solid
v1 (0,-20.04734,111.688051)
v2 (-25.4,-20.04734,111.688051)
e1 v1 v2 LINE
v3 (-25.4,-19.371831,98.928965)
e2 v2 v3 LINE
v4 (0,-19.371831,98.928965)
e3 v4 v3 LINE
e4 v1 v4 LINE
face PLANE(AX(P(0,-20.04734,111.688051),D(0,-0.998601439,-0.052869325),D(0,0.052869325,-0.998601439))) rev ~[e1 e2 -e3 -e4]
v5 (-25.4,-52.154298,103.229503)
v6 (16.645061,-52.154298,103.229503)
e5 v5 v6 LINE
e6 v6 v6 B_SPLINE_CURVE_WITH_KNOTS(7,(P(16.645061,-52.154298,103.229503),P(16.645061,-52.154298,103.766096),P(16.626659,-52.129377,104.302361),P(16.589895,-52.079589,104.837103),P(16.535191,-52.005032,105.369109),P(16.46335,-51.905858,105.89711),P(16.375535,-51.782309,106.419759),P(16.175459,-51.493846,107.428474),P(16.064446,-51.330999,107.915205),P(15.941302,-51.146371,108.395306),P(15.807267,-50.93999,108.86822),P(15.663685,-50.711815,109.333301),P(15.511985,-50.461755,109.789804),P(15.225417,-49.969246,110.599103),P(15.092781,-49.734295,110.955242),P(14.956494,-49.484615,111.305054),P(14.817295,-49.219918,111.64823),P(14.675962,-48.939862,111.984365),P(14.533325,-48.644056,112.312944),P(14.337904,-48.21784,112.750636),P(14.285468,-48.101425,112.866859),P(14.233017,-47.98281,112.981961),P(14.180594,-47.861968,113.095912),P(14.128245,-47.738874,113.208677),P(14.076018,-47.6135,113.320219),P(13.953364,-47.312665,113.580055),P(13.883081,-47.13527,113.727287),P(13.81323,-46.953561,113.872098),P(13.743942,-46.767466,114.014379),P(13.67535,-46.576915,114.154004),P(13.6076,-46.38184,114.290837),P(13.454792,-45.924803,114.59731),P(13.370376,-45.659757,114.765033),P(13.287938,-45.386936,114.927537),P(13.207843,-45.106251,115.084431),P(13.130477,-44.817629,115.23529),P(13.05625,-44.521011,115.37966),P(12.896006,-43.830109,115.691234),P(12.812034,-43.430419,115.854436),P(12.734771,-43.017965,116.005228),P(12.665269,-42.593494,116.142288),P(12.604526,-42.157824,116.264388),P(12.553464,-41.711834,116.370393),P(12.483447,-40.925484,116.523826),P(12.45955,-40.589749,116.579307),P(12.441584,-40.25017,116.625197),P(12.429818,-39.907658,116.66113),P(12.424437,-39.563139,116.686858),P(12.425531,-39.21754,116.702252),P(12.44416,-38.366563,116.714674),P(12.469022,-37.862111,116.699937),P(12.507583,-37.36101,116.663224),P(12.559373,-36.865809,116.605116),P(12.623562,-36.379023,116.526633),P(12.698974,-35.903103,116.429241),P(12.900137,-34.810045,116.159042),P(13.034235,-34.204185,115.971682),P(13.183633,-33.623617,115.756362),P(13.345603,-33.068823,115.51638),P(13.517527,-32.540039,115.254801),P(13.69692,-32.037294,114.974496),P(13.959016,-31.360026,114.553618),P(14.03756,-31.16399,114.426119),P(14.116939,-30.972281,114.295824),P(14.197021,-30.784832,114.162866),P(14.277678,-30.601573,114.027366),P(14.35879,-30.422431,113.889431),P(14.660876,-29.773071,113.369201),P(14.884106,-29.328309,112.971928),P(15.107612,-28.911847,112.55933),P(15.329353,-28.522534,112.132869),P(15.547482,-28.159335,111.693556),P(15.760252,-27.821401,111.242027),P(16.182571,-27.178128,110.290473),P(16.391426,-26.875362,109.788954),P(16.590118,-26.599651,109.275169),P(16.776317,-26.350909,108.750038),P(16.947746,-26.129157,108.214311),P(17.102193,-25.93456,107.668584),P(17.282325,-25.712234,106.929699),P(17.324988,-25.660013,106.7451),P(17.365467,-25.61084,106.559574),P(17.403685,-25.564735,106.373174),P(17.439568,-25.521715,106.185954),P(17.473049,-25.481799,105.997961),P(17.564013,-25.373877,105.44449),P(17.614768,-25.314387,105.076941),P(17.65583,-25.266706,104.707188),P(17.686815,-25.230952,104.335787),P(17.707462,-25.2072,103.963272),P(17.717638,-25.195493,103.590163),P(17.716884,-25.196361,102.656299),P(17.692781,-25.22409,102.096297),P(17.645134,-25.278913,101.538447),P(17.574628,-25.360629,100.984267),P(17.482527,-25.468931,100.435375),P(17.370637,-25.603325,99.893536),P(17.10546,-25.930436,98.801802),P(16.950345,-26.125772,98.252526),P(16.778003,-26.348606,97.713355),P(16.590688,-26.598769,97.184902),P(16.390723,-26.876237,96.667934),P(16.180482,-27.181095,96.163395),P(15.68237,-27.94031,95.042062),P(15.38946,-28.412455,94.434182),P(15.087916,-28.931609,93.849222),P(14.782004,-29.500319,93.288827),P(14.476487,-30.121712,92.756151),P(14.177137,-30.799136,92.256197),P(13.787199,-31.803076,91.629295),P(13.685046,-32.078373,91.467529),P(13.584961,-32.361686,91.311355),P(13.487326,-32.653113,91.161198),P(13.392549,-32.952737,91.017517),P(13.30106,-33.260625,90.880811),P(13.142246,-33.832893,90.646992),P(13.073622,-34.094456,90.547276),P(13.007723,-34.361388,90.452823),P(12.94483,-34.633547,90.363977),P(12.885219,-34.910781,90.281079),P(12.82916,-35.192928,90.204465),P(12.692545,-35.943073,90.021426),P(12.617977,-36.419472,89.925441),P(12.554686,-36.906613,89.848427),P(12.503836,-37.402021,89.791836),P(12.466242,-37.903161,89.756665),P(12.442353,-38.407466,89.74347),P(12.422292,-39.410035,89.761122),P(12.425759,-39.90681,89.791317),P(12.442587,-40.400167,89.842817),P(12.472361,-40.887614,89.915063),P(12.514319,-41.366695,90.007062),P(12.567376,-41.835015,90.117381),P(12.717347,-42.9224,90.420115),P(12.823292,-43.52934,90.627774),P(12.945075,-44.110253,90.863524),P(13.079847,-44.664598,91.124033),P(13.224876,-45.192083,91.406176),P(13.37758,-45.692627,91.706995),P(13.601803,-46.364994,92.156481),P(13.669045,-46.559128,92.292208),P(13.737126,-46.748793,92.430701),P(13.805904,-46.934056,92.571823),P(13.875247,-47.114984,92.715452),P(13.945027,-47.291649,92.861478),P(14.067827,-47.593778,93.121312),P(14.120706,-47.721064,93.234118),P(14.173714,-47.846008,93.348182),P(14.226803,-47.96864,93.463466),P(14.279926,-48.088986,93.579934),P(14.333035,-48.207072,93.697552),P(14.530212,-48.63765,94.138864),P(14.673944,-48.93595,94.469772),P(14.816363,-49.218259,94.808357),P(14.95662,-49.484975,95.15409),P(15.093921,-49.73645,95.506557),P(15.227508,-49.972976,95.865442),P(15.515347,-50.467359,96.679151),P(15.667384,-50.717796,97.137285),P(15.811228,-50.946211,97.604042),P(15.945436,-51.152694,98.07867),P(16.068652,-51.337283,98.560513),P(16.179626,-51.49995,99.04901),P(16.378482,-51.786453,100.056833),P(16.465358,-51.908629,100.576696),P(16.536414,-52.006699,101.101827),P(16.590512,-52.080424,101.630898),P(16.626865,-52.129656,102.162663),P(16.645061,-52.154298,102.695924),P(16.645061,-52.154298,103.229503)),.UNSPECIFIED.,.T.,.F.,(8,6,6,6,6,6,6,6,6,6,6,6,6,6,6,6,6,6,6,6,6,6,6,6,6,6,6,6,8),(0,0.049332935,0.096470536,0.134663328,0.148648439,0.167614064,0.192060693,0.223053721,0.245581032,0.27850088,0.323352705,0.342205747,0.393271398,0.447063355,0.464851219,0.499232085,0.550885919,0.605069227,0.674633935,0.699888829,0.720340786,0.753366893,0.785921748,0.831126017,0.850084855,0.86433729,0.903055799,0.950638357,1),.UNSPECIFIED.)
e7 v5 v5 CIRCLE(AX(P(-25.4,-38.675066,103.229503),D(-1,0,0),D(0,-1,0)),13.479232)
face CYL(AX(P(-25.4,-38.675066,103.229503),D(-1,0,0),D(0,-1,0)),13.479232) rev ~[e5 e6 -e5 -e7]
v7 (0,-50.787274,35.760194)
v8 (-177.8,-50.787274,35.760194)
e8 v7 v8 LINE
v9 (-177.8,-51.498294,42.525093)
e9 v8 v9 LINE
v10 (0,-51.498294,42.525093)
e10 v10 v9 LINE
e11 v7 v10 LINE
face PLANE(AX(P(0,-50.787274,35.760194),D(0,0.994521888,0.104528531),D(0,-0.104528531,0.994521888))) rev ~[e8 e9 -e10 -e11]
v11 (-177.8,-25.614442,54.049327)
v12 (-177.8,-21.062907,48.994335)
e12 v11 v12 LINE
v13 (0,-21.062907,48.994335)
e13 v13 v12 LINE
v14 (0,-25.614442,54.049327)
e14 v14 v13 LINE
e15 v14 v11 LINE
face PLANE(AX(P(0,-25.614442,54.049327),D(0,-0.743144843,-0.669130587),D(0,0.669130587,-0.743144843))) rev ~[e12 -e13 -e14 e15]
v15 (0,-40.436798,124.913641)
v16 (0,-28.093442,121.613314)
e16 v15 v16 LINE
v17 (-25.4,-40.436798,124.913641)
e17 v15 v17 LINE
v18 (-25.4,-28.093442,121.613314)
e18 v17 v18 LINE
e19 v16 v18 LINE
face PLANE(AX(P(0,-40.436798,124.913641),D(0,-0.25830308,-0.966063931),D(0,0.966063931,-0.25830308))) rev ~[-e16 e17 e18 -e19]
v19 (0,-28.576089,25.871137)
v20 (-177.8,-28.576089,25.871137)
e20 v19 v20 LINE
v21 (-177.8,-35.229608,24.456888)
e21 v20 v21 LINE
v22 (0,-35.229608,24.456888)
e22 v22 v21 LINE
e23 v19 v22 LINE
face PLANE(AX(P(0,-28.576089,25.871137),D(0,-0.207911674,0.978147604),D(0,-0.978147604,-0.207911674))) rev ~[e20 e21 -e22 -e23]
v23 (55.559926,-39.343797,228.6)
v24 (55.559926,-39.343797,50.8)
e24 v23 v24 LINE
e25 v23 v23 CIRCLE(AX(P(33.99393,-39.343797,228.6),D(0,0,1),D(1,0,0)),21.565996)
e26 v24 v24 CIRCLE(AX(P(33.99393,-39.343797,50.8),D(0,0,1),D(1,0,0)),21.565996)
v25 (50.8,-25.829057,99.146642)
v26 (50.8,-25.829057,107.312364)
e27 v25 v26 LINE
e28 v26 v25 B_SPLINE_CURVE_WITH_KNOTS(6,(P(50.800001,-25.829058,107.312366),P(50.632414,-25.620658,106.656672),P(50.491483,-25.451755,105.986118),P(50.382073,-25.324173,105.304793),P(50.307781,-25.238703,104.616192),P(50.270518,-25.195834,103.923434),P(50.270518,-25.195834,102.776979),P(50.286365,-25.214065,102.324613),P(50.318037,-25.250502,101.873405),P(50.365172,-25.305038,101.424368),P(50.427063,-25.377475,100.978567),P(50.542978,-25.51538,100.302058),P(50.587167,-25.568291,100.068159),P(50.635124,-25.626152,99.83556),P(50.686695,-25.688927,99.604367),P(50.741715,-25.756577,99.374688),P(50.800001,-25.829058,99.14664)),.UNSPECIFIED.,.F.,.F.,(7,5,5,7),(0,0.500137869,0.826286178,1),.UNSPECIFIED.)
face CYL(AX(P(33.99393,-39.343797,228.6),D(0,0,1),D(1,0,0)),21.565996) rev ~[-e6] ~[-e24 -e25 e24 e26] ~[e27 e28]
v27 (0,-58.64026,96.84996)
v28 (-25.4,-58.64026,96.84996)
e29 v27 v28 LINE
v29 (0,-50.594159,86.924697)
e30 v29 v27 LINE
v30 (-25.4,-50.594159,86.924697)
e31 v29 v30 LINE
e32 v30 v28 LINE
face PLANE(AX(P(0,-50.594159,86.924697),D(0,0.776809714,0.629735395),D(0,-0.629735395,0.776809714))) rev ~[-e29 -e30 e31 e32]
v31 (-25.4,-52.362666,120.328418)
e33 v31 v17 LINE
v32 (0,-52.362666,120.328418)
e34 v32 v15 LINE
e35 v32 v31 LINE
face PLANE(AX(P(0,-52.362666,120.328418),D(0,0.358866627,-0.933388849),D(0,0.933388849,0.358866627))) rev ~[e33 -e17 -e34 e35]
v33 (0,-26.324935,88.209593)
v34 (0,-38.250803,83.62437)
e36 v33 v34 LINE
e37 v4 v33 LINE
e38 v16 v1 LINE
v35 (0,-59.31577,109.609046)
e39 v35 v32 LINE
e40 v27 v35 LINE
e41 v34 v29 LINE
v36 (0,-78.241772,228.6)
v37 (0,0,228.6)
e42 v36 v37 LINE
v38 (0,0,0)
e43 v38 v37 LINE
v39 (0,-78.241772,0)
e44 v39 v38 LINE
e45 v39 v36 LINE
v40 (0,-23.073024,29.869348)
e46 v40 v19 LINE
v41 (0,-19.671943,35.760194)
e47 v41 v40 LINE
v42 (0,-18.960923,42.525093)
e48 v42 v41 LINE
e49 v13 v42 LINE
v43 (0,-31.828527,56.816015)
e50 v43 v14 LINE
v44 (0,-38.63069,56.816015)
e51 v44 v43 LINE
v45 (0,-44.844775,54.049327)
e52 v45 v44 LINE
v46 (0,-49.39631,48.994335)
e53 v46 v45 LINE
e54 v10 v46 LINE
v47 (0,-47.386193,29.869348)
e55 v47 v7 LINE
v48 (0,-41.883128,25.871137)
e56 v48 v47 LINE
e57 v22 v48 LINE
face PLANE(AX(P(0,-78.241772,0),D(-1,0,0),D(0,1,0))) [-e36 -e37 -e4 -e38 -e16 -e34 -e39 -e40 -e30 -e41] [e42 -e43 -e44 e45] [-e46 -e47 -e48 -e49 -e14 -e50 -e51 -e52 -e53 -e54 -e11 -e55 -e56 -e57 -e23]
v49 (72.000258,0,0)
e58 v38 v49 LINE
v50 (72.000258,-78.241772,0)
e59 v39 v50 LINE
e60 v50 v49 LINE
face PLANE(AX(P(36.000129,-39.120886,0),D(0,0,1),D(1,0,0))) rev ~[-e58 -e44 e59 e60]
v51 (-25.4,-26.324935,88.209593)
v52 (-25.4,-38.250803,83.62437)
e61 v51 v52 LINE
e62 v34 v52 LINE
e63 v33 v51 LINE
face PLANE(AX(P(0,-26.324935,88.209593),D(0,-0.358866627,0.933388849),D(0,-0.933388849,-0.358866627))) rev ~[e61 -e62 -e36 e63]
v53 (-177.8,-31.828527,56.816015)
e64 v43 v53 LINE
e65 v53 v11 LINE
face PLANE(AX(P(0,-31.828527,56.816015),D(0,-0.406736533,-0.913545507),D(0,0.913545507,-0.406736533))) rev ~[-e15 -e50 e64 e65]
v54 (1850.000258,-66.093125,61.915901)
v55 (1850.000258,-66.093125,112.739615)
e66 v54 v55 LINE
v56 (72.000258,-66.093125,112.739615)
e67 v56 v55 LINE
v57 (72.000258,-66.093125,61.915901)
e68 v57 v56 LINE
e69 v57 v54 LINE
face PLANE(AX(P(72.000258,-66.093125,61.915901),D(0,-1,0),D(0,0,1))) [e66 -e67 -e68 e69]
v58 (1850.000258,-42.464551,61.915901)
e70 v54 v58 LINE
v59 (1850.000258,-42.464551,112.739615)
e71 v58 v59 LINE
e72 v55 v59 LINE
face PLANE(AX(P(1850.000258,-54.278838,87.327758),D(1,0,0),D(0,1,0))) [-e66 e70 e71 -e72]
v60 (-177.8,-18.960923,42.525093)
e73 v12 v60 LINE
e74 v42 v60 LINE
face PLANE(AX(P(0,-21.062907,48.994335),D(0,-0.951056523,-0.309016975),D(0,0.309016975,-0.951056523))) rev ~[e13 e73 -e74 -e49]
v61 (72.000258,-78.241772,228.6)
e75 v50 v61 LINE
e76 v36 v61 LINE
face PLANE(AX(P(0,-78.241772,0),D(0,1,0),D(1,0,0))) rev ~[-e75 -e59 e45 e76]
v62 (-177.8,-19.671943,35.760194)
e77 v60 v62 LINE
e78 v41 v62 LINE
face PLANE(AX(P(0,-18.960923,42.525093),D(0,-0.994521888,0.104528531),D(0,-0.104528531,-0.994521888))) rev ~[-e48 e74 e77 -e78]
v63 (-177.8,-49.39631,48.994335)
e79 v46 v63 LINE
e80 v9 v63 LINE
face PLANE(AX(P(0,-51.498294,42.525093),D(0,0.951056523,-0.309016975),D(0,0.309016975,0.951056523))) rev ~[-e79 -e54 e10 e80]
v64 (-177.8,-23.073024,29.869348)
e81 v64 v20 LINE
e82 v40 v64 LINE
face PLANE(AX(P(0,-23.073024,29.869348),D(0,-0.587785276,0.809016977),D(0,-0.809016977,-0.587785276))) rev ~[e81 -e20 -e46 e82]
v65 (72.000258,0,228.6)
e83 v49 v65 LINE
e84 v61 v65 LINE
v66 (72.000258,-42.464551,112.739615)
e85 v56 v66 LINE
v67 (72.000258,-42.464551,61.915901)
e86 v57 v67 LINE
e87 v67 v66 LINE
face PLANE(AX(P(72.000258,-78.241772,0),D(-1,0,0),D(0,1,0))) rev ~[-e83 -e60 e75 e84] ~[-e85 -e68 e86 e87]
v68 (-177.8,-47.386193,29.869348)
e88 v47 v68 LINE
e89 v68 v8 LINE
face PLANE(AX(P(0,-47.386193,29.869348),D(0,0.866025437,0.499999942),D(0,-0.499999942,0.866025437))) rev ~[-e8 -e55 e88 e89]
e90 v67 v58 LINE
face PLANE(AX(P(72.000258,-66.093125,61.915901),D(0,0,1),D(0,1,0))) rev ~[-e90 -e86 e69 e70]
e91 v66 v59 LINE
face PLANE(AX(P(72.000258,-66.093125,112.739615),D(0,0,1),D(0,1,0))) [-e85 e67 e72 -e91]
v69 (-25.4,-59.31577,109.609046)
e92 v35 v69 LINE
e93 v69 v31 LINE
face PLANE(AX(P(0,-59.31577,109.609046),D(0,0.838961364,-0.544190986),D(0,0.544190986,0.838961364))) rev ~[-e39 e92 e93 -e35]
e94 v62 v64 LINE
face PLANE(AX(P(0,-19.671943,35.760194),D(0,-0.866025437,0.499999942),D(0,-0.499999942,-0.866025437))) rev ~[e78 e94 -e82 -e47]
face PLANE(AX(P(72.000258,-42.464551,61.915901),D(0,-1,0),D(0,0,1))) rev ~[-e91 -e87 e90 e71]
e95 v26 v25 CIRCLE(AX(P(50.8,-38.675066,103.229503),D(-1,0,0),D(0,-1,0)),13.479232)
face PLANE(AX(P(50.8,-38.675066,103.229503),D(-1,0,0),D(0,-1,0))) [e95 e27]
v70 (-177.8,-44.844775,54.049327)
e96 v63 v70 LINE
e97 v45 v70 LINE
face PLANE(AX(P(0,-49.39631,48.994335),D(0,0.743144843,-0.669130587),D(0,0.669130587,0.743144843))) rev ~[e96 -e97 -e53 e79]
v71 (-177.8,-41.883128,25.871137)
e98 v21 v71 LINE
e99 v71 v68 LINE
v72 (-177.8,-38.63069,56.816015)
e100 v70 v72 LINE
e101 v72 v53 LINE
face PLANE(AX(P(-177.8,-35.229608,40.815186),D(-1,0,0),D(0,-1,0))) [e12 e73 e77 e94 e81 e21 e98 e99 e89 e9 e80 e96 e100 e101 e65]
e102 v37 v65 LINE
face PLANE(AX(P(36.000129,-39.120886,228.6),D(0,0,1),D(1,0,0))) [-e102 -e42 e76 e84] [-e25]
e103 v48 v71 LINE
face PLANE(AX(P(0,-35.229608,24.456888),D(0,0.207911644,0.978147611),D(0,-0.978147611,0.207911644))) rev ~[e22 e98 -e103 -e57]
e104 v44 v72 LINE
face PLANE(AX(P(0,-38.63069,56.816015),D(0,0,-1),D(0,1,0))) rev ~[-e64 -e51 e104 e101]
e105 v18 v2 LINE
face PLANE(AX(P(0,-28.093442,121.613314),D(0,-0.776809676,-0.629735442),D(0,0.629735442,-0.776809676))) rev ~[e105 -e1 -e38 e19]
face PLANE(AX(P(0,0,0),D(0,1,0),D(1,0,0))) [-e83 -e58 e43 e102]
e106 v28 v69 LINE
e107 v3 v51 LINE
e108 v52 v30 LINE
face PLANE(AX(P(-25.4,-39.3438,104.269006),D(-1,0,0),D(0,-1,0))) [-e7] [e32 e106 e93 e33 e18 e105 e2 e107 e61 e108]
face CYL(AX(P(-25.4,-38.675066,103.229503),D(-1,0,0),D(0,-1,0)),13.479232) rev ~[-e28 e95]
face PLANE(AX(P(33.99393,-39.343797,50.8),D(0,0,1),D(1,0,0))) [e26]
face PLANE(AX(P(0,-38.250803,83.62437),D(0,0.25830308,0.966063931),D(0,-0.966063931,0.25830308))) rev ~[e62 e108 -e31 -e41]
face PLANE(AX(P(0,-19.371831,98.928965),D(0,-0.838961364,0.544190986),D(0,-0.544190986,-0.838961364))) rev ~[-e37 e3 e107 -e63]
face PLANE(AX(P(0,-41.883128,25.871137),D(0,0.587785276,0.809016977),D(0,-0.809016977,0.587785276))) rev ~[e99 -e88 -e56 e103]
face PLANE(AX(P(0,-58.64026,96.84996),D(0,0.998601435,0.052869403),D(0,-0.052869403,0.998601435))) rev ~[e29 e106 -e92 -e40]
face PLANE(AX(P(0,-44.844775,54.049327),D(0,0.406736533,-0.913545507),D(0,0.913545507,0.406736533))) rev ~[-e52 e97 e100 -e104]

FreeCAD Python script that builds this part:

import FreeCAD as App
import Part
import Sketcher
from FreeCAD import Vector
Q = App.Units.Quantity


def add_polygon(sketch, points):
    """Adds a closed chain of lines whose ends are joined by coincident constraints."""
    first, n = sketch.GeometryCount, len(points)
    for a, b in zip(points, points[1:] + points[:1]):
        sketch.addGeometry(Part.LineSegment(App.Vector(*a, 0), App.Vector(*b, 0)), False)
    for i in range(n):
        sketch.addConstraint(Sketcher.Constraint("Coincident", first + i, 2, first + (i + 1) % n, 1))

doc = App.newDocument("Part")
body = doc.addObject("PartDesign::Body", "Body")

# Sketch on XY plane
sketch1 = body.newObject("Sketcher::SketchObject", "Sketch")
sketch1.AttachmentSupport = (doc.getObject("XY_Plane"), [""])
sketch1.MapMode = "FlatFace"
add_polygon(sketch1, [(0, 0), (0, -78), (72, -78), (72, 0)])  # lines 0-3
sketch1.addConstraint([
    Sketcher.Constraint("Vertical", 0),
    Sketcher.Constraint("Horizontal", 1),
    Sketcher.Constraint("Vertical", 2),
    Sketcher.Constraint("Horizontal", 3),
    Sketcher.Constraint("Coincident", 3, 2, -1, 1),
    Sketcher.Constraint("DistanceX", 1, 1, 1, 2, 72.000258),
    Sketcher.Constraint("DistanceY", 0, 2, 0, 1, 78.241773),
])
pad1 = body.newObject("PartDesign::Pad", "Pad")
pad1.Profile = sketch1
pad1.Length = Q("9 in")

# Sketch on YZ plane
sketch2 = body.newObject("Sketcher::SketchObject", "Sketch001")
sketch2.AttachmentSupport = (doc.getObject("YZ_Plane"), [""])
sketch2.MapMode = "FlatFace"
add_polygon(sketch2, [(-59, 110), (-52, 120), (-40, 125), (-28, 122), (-20, 112), (-19, 99), (-26, 88), (-38, 84), (-51, 87), (-59, 97)])  # lines 0-9
sketch2.addConstraint([
    Sketcher.Constraint("Parallel", 0, 5),
    Sketcher.Constraint("Parallel", 1, 6),
    Sketcher.Constraint("Parallel", 2, 7),
    Sketcher.Constraint("Parallel", 3, 8),
    Sketcher.Constraint("Parallel", 4, 9),
    Sketcher.Constraint("Equal", 0, 1),
    Sketcher.Constraint("Equal", 1, 2),
    Sketcher.Constraint("Equal", 2, 3),
    Sketcher.Constraint("Equal", 3, 4),
    Sketcher.Constraint("Equal", 4, 5),
    Sketcher.Constraint("Equal", 5, 6),
    Sketcher.Constraint("Equal", 6, 7),
    Sketcher.Constraint("DistanceX", 1, 2, -1, 1, Q("1.5919999 in")),
    Sketcher.Constraint("DistanceX", 8, 2, 7, 2, 8.046101),
    Sketcher.Constraint("DistanceY", -1, 1, 0, 2, 120.328418),
    Sketcher.Constraint("DistanceY", -1, 1, 1, 2, 124.913641),
    Sketcher.Constraint("DistanceX", 2, 2, -1, 1, 28.093442),
    Sketcher.Constraint("DistanceY", -1, 1, 3, 2, 111.688051),
    Sketcher.Constraint("DistanceX", 4, 2, -1, 1, 19.371831),
    Sketcher.Constraint("DistanceY", -1, 1, 6, 2, 83.62437),
])
pad2 = body.newObject("PartDesign::Pad", "Pad001")
pad2.Profile = sketch2
pad2.Length = Q("1 in")
pad2.Reversed = True

# Sketch on XY plane
sketch3 = body.newObject("Sketcher::SketchObject", "Sketch002")
sketch3.AttachmentSupport = (doc.getObject("XY_Plane"), [""])
sketch3.MapMode = "FlatFace"
sketch3.AttachmentOffset = App.Placement(Vector(0, 0, 9 * 25.4), App.Rotation())
sketch3.addGeometry(Part.Circle(Vector(34, -39, 0), Vector(0, 0, 1), 22), False)
sketch3.addConstraint([
    Sketcher.Constraint("Diameter", 0, 43.131992),
    Sketcher.Constraint("DistanceX", -1, 1, 0, 3, 33.99393),
    Sketcher.Constraint("DistanceY", 0, 3, -1, 1, 39.343797),
])
pocket1 = body.newObject("PartDesign::Pocket", "Pocket")
pocket1.Profile = sketch3
pocket1.Length = Q("7 in")

# Sketch on YZ plane
sketch4 = body.newObject("Sketcher::SketchObject", "Sketch003")
sketch4.AttachmentSupport = (doc.getObject("YZ_Plane"), [""])
sketch4.MapMode = "FlatFace"
sketch4.AttachmentOffset = App.Placement(Vector(0, 0, -1 * 25.4), App.Rotation())
sketch4.addGeometry(Part.Circle(Vector(-39, 103, 0), Vector(0, 0, 1), 13), False)
sketch4.addConstraint([
    Sketcher.Constraint("Diameter", 0, 26.958464),
    Sketcher.Constraint("DistanceX", 0, 3, -1, 1, 38.675066),
    Sketcher.Constraint("DistanceY", -1, 1, 0, 3, 103.229503),
])
pocket2 = body.newObject("PartDesign::Pocket", "Pocket001")
pocket2.Profile = sketch4
pocket2.Length = Q("3 in")
pocket2.Reversed = True

# Sketch on YZ plane
sketch5 = body.newObject("Sketcher::SketchObject", "Sketch004")
sketch5.AttachmentSupport = (doc.getObject("YZ_Plane"), [""])
sketch5.MapMode = "FlatFace"
sketch5.AttachmentOffset = App.Placement(Vector(0, 0, 72.000258), App.Rotation())
add_polygon(sketch5, [(-66, 113), (-66, 62), (-42, 62), (-42, 113)])  # lines 0-3
sketch5.addConstraint([
    Sketcher.Constraint("Vertical", 0),
    Sketcher.Constraint("Horizontal", 1),
    Sketcher.Constraint("Vertical", 2),
    Sketcher.Constraint("Horizontal", 3),
    Sketcher.Constraint("DistanceY", -1, 1, 0, 2, 61.915901),
    Sketcher.Constraint("DistanceX", 1, 1, 1, 2, 23.628573),
    Sketcher.Constraint("DistanceY", 0, 2, 0, 1, 50.823714),
    Sketcher.Constraint("DistanceX", 1, 2, -1, 1, 42.464551),
])
pad3 = body.newObject("PartDesign::Pad", "Pad002")
pad3.Profile = sketch5
pad3.Length = Q("70 in")

# Sketch on YZ plane
sketch6 = body.newObject("Sketcher::SketchObject", "Sketch005")
sketch6.AttachmentSupport = (doc.getObject("YZ_Plane"), [""])
sketch6.MapMode = "FlatFace"
add_polygon(sketch6, [(-39, 57), (-32, 57), (-26, 54), (-21, 49), (-19, 43), (-20, 36), (-23, 30), (-29, 26), (-35, 24), (-42, 26), (-47, 30), (-51, 36), (-51, 43), (-49, 49), (-45, 54)])  # lines 0-14
sketch6.addConstraint([
    Sketcher.Constraint("Horizontal", 0),
    Sketcher.Constraint("Horizontal", 6, 2, 8, 2),
    Sketcher.Constraint("Horizontal", 5, 2, 9, 2),
    Sketcher.Constraint("Horizontal", 4, 2, 10, 2),
    Sketcher.Constraint("Horizontal", 3, 2, 11, 2),
    Sketcher.Constraint("Horizontal", 2, 2, 12, 2),
    Sketcher.Constraint("Horizontal", 1, 2, 13, 2),
    Sketcher.Constraint("Equal", 1, 2),
    Sketcher.Constraint("Equal", 2, 3),
    Sketcher.Constraint("Equal", 3, 4),
    Sketcher.Constraint("Equal", 4, 5),
    Sketcher.Constraint("Equal", 5, 6),
    Sketcher.Constraint("Equal", 6, 7),
    Sketcher.Constraint("Equal", 7, 8),
    Sketcher.Constraint("Equal", 8, 9),
    Sketcher.Constraint("Equal", 9, 10),
    Sketcher.Constraint("Equal", 10, 11),
    Sketcher.Constraint("Equal", 11, 12),
    Sketcher.Constraint("Equal", 12, 13),
    Sketcher.Constraint("Equal", 13, 14),
    Sketcher.Constraint("Angle", 1, Q("-23.999993 deg")),
    Sketcher.Constraint("Angle", 2, Q("-48.000002 deg")),
    Sketcher.Constraint("Angle", 3, Q("-72.000001 deg")),
    Sketcher.Constraint("Angle", 4, Q("-96.000004 deg")),
    Sketcher.Constraint("Angle", 5, Q("-119.999996 deg")),
    Sketcher.Constraint("Angle", 6, Q("-143.999998 deg")),
    Sketcher.Constraint("Angle", 7, Q("-168.000001 deg")),
    Sketcher.Constraint("DistanceY", 4, 2, 3, 2, 6.764899),
    Sketcher.Constraint("DistanceX", 6, 2, -1, 1, 28.576089),
    Sketcher.Constraint("DistanceY", -1, 1, 0, 2, 56.816015),
])
pad4 = body.newObject("PartDesign::Pad", "Pad003")
pad4.Profile = sketch6
pad4.Length = Q("7 in")
pad4.Reversed = True

doc.recompute()
